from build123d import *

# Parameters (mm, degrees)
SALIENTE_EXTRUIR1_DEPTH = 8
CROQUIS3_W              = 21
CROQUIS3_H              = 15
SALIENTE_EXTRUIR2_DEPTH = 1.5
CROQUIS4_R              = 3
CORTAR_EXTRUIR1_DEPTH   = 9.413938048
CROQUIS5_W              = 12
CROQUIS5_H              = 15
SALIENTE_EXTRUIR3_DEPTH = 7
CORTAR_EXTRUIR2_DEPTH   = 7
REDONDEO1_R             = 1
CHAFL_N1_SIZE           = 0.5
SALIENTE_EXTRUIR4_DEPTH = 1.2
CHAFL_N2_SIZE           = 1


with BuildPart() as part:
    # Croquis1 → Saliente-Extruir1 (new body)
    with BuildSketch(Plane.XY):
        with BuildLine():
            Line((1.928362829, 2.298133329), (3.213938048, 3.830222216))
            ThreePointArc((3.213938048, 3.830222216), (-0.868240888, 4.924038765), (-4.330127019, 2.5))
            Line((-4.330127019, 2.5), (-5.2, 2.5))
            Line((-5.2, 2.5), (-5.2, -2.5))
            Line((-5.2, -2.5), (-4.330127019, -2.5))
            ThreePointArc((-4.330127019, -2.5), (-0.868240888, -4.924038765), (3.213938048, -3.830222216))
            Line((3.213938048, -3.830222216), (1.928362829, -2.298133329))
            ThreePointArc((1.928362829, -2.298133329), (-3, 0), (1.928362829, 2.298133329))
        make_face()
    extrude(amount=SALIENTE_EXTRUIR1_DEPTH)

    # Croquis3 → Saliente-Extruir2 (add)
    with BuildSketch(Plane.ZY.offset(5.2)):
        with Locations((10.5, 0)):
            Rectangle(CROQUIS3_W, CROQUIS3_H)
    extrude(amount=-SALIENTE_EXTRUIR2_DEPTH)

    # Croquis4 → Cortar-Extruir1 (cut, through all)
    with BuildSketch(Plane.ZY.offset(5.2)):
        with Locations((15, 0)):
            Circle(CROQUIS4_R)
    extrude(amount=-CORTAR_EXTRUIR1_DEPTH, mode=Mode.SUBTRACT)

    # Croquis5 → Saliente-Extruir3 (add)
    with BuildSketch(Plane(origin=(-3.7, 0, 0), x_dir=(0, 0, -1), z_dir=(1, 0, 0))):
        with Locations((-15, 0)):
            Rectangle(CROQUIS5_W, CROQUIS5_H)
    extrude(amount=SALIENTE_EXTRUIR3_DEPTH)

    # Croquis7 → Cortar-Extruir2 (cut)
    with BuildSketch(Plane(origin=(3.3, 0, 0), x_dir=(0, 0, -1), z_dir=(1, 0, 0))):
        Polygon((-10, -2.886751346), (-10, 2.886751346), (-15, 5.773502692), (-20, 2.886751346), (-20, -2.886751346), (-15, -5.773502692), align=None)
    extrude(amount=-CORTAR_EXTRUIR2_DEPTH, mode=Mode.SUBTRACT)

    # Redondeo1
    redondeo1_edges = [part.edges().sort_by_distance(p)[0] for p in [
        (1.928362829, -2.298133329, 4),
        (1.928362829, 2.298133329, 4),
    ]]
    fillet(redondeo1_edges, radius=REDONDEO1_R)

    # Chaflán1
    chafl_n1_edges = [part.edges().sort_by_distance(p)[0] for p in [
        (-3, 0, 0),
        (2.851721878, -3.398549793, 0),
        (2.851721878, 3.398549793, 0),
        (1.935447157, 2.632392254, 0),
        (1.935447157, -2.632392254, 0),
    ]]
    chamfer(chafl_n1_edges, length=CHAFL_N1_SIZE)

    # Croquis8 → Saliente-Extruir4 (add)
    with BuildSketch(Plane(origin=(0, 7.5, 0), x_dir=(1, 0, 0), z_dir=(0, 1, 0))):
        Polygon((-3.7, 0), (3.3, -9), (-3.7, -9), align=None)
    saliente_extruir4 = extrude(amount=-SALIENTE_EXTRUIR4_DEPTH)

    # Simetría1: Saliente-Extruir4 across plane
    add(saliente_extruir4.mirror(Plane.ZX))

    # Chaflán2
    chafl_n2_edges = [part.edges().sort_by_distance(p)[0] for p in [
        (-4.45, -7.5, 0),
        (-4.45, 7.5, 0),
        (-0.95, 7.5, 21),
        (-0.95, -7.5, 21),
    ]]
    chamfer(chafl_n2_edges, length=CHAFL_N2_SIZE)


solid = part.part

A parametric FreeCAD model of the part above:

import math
import FreeCAD as App
import Part
import Sketcher
from FreeCAD import Vector
Q = App.Units.Quantity


def edges_at(feature, points):
    """Names of the edges that pass closest to the given points."""
    edges = feature.Shape.Edges
    near = lambda p: min(range(len(edges)), key=lambda i: edges[i].distToShape(Part.Vertex(*p))[0])
    return sorted({f"Edge{near(p) + 1}" for p in points})


def add_polygon(sketch, points):
    """Adds a closed chain of lines whose ends are joined by coincident constraints."""
    first, n = sketch.GeometryCount, len(points)
    for a, b in zip(points, points[1:] + points[:1]):
        sketch.addGeometry(Part.LineSegment(App.Vector(*a, 0), App.Vector(*b, 0)), False)
    for i in range(n):
        sketch.addConstraint(Sketcher.Constraint("Coincident", first + i, 2, first + (i + 1) % n, 1))

doc = App.newDocument("Part")
params = doc.addObject("Spreadsheet::Sheet", "Params")
for row, (alias, value) in enumerate([
    ("sketch1_radius", "5 mm"),
    ("sketch1_radius2", "3 mm"),
    ("sketch1_height", "5 mm"),
    ("pad1_length", "8 mm"),
    ("sketch2_width", "15 mm"),
    ("sketch2_height", "21 mm"),
    ("pad2_length", "1.5 mm"),
    ("sketch3_diameter", "6 mm"),
    ("sketch4_width", "15 mm"),
    ("sketch4_height", "12 mm"),
    ("pad3_length", "7 mm"),
    ("pocket2_length", "7 mm"),
    ("fillet_radius", "1 mm"),
    ("chamfer_size", "0.5 mm"),
    ("sketch6_width", "7 mm"),
    ("sketch6_height", "9 mm"),
    ("pad4_length", "1.2 mm"),
    ("chamfer2_size", "1 mm"),
], start=1):
    params.set(f"A{row}", alias)
    params.set(f"B{row}", "=" + value)
    params.setAlias(f"B{row}", alias)

body = doc.addObject("PartDesign::Body", "Body")

sketch1 = body.newObject("Sketcher::SketchObject", "Sketch")
sketch1.AttachmentSupport = (doc.getObject("XY_Plane"), [""])
sketch1.MapMode = "FlatFace"
sketch1.addGeometry(Part.LineSegment(Vector(1.9, 2.3, 0), Vector(3.2, 3.8, 0)), False)
sketch1.addGeometry(Part.ArcOfCircle(Part.Circle(Vector(0, 0, 0), Vector(0, 0, 1), 5), math.radians(50), math.radians(150)), False)
sketch1.addGeometry(Part.LineSegment(Vector(-4.3, 2.5, 0), Vector(-5.2, 2.5, 0)), False)
sketch1.addGeometry(Part.LineSegment(Vector(-5.2, 2.5, 0), Vector(-5.2, -2.5, 0)), False)
sketch1.addGeometry(Part.LineSegment(Vector(-5.2, -2.5, 0), Vector(-4.3, -2.5, 0)), False)
sketch1.addGeometry(Part.ArcOfCircle(Part.Circle(Vector(0, 0, 0), Vector(0, 0, 1), 5), math.radians(-150), math.radians(-50)), False)
sketch1.addGeometry(Part.LineSegment(Vector(3.2, -3.8, 0), Vector(1.9, -2.3, 0)), False)
sketch1.addGeometry(Part.ArcOfCircle(Part.Circle(Vector(0, 0, 0), Vector(0, 0, 1), 3), math.radians(50), math.radians(310)), False)
sketch1.addConstraint(Sketcher.Constraint("Coincident", 0, 2, 1, 1))
sketch1.addConstraint(Sketcher.Constraint("Coincident", 1, 2, 2, 1))
sketch1.addConstraint(Sketcher.Constraint("Coincident", 2, 2, 3, 1))
sketch1.addConstraint(Sketcher.Constraint("Coincident", 3, 2, 4, 1))
sketch1.addConstraint(Sketcher.Constraint("Coincident", 4, 2, 5, 1))
sketch1.addConstraint(Sketcher.Constraint("Coincident", 5, 2, 6, 1))
sketch1.addConstraint(Sketcher.Constraint("Coincident", 6, 2, 7, 2))
sketch1.addConstraint(Sketcher.Constraint("Coincident", 7, 1, 0, 1))
sketch1.addConstraint(Sketcher.Constraint("Horizontal", 2))
sketch1.addConstraint(Sketcher.Constraint("Vertical", 3))
sketch1.addConstraint(Sketcher.Constraint("Horizontal", 4))
sketch1.addConstraint(Sketcher.Constraint("Coincident", 1, 3, -1, 1))
sketch1.addConstraint(Sketcher.Constraint("Coincident", 5, 3, -1, 1))
sketch1.addConstraint(Sketcher.Constraint("Coincident", 7, 3, -1, 1))
sketch1.addConstraint(Sketcher.Constraint("Equal", 1, 5))
sketch1.addConstraint(Sketcher.Constraint("Vertical", 1, 2, 4, 2))
sketch1.addConstraint(Sketcher.Constraint("Vertical", 0, 2, 5, 2))
sketch1.addConstraint(Sketcher.Constraint("Vertical", 6, 2, 7, 1))
sketch1.addConstraint(Sketcher.Constraint("Radius", 1, Q("5 mm")))
sketch1.addConstraint(Sketcher.Constraint("Radius", 7, Q("3 mm")))
sketch1.addConstraint(Sketcher.Constraint("DistanceY", 3, 2, 3, 1, Q("5 mm")))
sketch1.addConstraint(Sketcher.Constraint("Angle", 0, Q("50 deg")))
sketch1.addConstraint(Sketcher.Constraint("DistanceX", 2, 2, -1, 1, Q("5.2 mm")))
sketch1.addConstraint(Sketcher.Constraint("DistanceX", -1, 1, 0, 2, Q("3.213938 mm")))
sketch1.setExpression("Constraints[18]", "Params.sketch1_radius")
sketch1.setExpression("Constraints[19]", "Params.sketch1_radius2")
sketch1.setExpression("Constraints[20]", "Params.sketch1_height")
pad1 = body.newObject("PartDesign::Pad", "Pad")
pad1.Profile = sketch1
pad1.setExpression("Length", "Params.pad1_length")

sketch2 = body.newObject("Sketcher::SketchObject", "Sketch001")
sketch2.AttachmentSupport = (doc.getObject("YZ_Plane"), [""])
sketch2.MapMode = "FlatFace"
sketch2.AttachmentOffset = App.Placement(Vector(0, 0, -5.2), App.Rotation())
add_polygon(sketch2, [(8, 0), (-8, 0), (-8, 21), (8, 21)])
sketch2.addConstraint(Sketcher.Constraint("Horizontal", 0))
sketch2.addConstraint(Sketcher.Constraint("Vertical", 1))
sketch2.addConstraint(Sketcher.Constraint("Horizontal", 2))
sketch2.addConstraint(Sketcher.Constraint("Vertical", 3))
sketch2.addConstraint(Sketcher.Constraint("Symmetric", 0, 2, 3, 2, -1, 1))
sketch2.addConstraint(Sketcher.Constraint("DistanceX", 0, 2, 0, 1, Q("15 mm")))
sketch2.addConstraint(Sketcher.Constraint("DistanceY", 1, 1, 1, 2, Q("21 mm")))
sketch2.setExpression("Constraints[9]", "Params.sketch2_width")
sketch2.setExpression("Constraints[10]", "Params.sketch2_height")
pad2 = body.newObject("PartDesign::Pad", "Pad001")
pad2.Profile = sketch2
pad2.setExpression("Length", "Params.pad2_length")

sketch3 = body.newObject("Sketcher::SketchObject", "Sketch002")
sketch3.AttachmentSupport = (doc.getObject("YZ_Plane"), [""])
sketch3.MapMode = "FlatFace"
sketch3.AttachmentOffset = App.Placement(Vector(0, 0, -5.2), App.Rotation())
sketch3.addGeometry(Part.Circle(Vector(0, 15, 0), Vector(0, 0, 1), 3), False)
sketch3.addConstraint(Sketcher.Constraint("PointOnObject", 0, 3, -2))
sketch3.addConstraint(Sketcher.Constraint("Diameter", 0, Q("6 mm")))
sketch3.addConstraint(Sketcher.Constraint("DistanceY", -1, 1, 0, 3, Q("15 mm")))
sketch3.setExpression("Constraints[1]", "Params.sketch3_diameter")
pocket1 = body.newObject("PartDesign::Pocket", "Pocket")
pocket1.Profile = sketch3
pocket1.Type = "ThroughAll"
pocket1.Reversed = True

sketch4 = body.newObject("Sketcher::SketchObject", "Sketch003")
sketch4.AttachmentSupport = (doc.getObject("YZ_Plane"), [""])
sketch4.MapMode = "FlatFace"
sketch4.AttachmentOffset = App.Placement(Vector(0, 0, -3.7), App.Rotation())
add_polygon(sketch4, [(8, 21), (-8, 21), (-8, 9), (8, 9)])
sketch4.addConstraint(Sketcher.Constraint("Horizontal", 0))
sketch4.addConstraint(Sketcher.Constraint("Vertical", 1))
sketch4.addConstraint(Sketcher.Constraint("Horizontal", 2))
sketch4.addConstraint(Sketcher.Constraint("Vertical", 3))
sketch4.addConstraint(Sketcher.Constraint("DistanceX", 0, 2, 0, 1, Q("15 mm")))
sketch4.addConstraint(Sketcher.Constraint("DistanceY", 1, 2, 1, 1, Q("12 mm")))
sketch4.addConstraint(Sketcher.Constraint("DistanceY", -1, 1, 0, 2, Q("21 mm")))
sketch4.addConstraint(Sketcher.Constraint("DistanceX", 0, 2, -1, 1, Q("7.5 mm")))
sketch4.setExpression("Constraints[8]", "Params.sketch4_width")
sketch4.setExpression("Constraints[9]", "Params.sketch4_height")
pad3 = body.newObject("PartDesign::Pad", "Pad002")
pad3.Profile = sketch4
pad3.setExpression("Length", "Params.pad3_length")

sketch5 = body.newObject("Sketcher::SketchObject", "Sketch004")
sketch5.AttachmentSupport = (doc.getObject("YZ_Plane"), [""])
sketch5.MapMode = "FlatFace"
sketch5.AttachmentOffset = App.Placement(Vector(0, 0, 3.3), App.Rotation())
add_polygon(sketch5, [(-3, 10), (3, 10), (6, 15), (3, 20), (-3, 20), (-6, 15)])
sketch5.addConstraint(Sketcher.Constraint("Horizontal", 0))
sketch5.addConstraint(Sketcher.Constraint("Horizontal", 3))
sketch5.addConstraint(Sketcher.Constraint("Symmetric", 1, 2, 4, 2, -2))
sketch5.addConstraint(Sketcher.Constraint("Parallel", 1, 4))
sketch5.addConstraint(Sketcher.Constraint("Parallel", 2, 5))
sketch5.addConstraint(Sketcher.Constraint("Vertical", 0, 2, 2, 2))
sketch5.addConstraint(Sketcher.Constraint("Vertical", 3, 2, 5, 2))
sketch5.addConstraint(Sketcher.Constraint("Angle", 1, Q("60 deg")))
sketch5.addConstraint(Sketcher.Constraint("DistanceY", -1, 1, 0, 2, Q("10 mm")))
sketch5.addConstraint(Sketcher.Constraint("DistanceY", -1, 1, 1, 2, Q("15 mm")))
sketch5.addConstraint(Sketcher.Constraint("DistanceX", 0, 1, 0, 2, Q("5.773503 mm")))
pocket2 = body.newObject("PartDesign::Pocket", "Pocket001")
pocket2.Profile = sketch5
pocket2.setExpression("Length", "Params.pocket2_length")
doc.recompute()

fillet = body.newObject("PartDesign::Fillet", "Fillet")
fillet.Base = (pocket2, edges_at(pocket2, [(1.928, -2.298, 4), (1.928, 2.298, 4)]))
fillet.setExpression("Radius", "Params.fillet_radius")
doc.recompute()

chamfer = body.newObject("PartDesign::Chamfer", "Chamfer")
chamfer.Base = (fillet, edges_at(fillet, [
    (-3, 0, 0),
    (2.852, -3.399, 0),
    (2.852, 3.399, 0),
    (1.935, 2.632, 0),
    (1.935, -2.632, 0),
]))
chamfer.setExpression("Size", "Params.chamfer_size")

sketch6 = body.newObject("Sketcher::SketchObject", "Sketch005")
sketch6.AttachmentSupport = (doc.getObject("XZ_Plane"), [""])
sketch6.MapMode = "FlatFace"
sketch6.AttachmentOffset = App.Placement(Vector(0, 0, -7.5), App.Rotation())
add_polygon(sketch6, [(3, 9), (-4, 0), (-4, 9)])
sketch6.addConstraint(Sketcher.Constraint("Vertical", 1))
sketch6.addConstraint(Sketcher.Constraint("Horizontal", 2))
sketch6.addConstraint(Sketcher.Constraint("PointOnObject", 0, 2, -1))
sketch6.addConstraint(Sketcher.Constraint("DistanceX", 2, 1, 2, 2, Q("7 mm")))
sketch6.addConstraint(Sketcher.Constraint("DistanceY", 1, 1, 1, 2, Q("9 mm")))
sketch6.addConstraint(Sketcher.Constraint("DistanceX", 0, 2, -1, 1, Q("3.7 mm")))
sketch6.setExpression("Constraints[6]", "Params.sketch6_width")
sketch6.setExpression("Constraints[7]", "Params.sketch6_height")
pad4 = body.newObject("PartDesign::Pad", "Pad003")
pad4.Profile = sketch6
pad4.setExpression("Length", "Params.pad4_length")
doc.recompute()

mirrored = body.newObject("PartDesign::Mirrored", "Mirrored")
mirrored.Originals = [pad4]
mirrored.MirrorPlane = (doc.getObject("XZ_Plane"), [""])
body.Tip = mirrored
doc.recompute()

chamfer2 = body.newObject("PartDesign::Chamfer", "Chamfer001")
chamfer2.Base = (mirrored, edges_at(mirrored, [
    (-4.45, -7.5, 0),
    (-4.45, 7.5, 0),
    (-0.95, 7.5, 21),
    (-0.95, -7.5, 21),
]))
chamfer2.setExpression("Size", "Params.chamfer2_size")

doc.recompute()
